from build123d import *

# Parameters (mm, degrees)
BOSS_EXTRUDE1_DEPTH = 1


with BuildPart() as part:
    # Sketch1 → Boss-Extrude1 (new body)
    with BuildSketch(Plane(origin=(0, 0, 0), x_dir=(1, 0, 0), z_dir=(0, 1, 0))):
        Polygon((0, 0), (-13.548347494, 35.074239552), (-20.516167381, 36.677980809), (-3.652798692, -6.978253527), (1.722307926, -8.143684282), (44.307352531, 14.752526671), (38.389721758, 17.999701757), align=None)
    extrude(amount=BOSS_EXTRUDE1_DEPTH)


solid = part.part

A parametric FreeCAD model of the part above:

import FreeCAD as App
import Part
import Sketcher
from FreeCAD import Vector

doc = App.newDocument("Part")
body = doc.addObject("PartDesign::Body", "Body")

# Sketch on XZ plane
sketch1 = body.newObject("Sketcher::SketchObject", "Sketch")
sketch1.AttachmentSupport = (doc.getObject("XZ_Plane"), [""])
sketch1.MapMode = "FlatFace"
sketch1.addGeometry(Part.LineSegment(Vector(0, 0, 0), Vector(-14, -35, 0)), False)
sketch1.addGeometry(Part.LineSegment(Vector(-14, -35, 0), Vector(-21, -37, 0)), False)
sketch1.addGeometry(Part.LineSegment(Vector(-21, -37, 0), Vector(-4, 7, 0)), False)
sketch1.addGeometry(Part.LineSegment(Vector(-4, 7, 0), Vector(2, 8, 0)), False)
sketch1.addGeometry(Part.LineSegment(Vector(2, 8, 0), Vector(44, -15, 0)), False)
sketch1.addGeometry(Part.LineSegment(Vector(44, -15, 0), Vector(38, -18, 0)), False)
sketch1.addGeometry(Part.LineSegment(Vector(38, -18, 0), Vector(0, 0, 0)), False)
sketch1.addConstraint(Sketcher.Constraint("Coincident", 0, 2, 1, 1))
sketch1.addConstraint(Sketcher.Constraint("Coincident", 1, 2, 2, 1))
sketch1.addConstraint(Sketcher.Constraint("Coincident", 2, 2, 3, 1))
sketch1.addConstraint(Sketcher.Constraint("Coincident", 3, 2, 4, 1))
sketch1.addConstraint(Sketcher.Constraint("Coincident", 4, 2, 5, 1))
sketch1.addConstraint(Sketcher.Constraint("Coincident", 5, 2, 6, 1))
sketch1.addConstraint(Sketcher.Constraint("Coincident", 6, 2, 0, 1))
sketch1.addConstraint(Sketcher.Constraint("Coincident", 6, 2, -1, 1))
sketch1.addConstraint(Sketcher.Constraint("Parallel", 0, 2))
sketch1.addConstraint(Sketcher.Constraint("Distance", 0, 37.6))
sketch1.addConstraint(Sketcher.Constraint("Distance", 2, 46.8))
sketch1.addConstraint(Sketcher.Constraint("Distance", 3, 5.5))
sketch1.addConstraint(Sketcher.Constraint("Distance", 6, 42.4))
sketch1.addConstraint(Sketcher.Constraint("Distance", 1, 7.15))
sketch1.addConstraint(Sketcher.Constraint("Distance", 4, 48.35))
sketch1.addConstraint(Sketcher.Constraint("Distance", 5, 6.75))
sketch1.addConstraint(Sketcher.Constraint("DistanceX", 2, 2, -1, 1, 3.652799))
sketch1.addConstraint(Sketcher.Constraint("DistanceY", 5, 2, -1, 1, 17.999702))
sketch1.addConstraint(Sketcher.Constraint("DistanceX", 0, 2, 4, 2, 57.8557))
sketch1.addConstraint(Sketcher.Constraint("DistanceY", 0, 2, -1, 1, 35.07424))
pad1 = body.newObject("PartDesign::Pad", "Pad")
pad1.Profile = sketch1
pad1.Length = 1
pad1.Reversed = True

doc.recompute()
